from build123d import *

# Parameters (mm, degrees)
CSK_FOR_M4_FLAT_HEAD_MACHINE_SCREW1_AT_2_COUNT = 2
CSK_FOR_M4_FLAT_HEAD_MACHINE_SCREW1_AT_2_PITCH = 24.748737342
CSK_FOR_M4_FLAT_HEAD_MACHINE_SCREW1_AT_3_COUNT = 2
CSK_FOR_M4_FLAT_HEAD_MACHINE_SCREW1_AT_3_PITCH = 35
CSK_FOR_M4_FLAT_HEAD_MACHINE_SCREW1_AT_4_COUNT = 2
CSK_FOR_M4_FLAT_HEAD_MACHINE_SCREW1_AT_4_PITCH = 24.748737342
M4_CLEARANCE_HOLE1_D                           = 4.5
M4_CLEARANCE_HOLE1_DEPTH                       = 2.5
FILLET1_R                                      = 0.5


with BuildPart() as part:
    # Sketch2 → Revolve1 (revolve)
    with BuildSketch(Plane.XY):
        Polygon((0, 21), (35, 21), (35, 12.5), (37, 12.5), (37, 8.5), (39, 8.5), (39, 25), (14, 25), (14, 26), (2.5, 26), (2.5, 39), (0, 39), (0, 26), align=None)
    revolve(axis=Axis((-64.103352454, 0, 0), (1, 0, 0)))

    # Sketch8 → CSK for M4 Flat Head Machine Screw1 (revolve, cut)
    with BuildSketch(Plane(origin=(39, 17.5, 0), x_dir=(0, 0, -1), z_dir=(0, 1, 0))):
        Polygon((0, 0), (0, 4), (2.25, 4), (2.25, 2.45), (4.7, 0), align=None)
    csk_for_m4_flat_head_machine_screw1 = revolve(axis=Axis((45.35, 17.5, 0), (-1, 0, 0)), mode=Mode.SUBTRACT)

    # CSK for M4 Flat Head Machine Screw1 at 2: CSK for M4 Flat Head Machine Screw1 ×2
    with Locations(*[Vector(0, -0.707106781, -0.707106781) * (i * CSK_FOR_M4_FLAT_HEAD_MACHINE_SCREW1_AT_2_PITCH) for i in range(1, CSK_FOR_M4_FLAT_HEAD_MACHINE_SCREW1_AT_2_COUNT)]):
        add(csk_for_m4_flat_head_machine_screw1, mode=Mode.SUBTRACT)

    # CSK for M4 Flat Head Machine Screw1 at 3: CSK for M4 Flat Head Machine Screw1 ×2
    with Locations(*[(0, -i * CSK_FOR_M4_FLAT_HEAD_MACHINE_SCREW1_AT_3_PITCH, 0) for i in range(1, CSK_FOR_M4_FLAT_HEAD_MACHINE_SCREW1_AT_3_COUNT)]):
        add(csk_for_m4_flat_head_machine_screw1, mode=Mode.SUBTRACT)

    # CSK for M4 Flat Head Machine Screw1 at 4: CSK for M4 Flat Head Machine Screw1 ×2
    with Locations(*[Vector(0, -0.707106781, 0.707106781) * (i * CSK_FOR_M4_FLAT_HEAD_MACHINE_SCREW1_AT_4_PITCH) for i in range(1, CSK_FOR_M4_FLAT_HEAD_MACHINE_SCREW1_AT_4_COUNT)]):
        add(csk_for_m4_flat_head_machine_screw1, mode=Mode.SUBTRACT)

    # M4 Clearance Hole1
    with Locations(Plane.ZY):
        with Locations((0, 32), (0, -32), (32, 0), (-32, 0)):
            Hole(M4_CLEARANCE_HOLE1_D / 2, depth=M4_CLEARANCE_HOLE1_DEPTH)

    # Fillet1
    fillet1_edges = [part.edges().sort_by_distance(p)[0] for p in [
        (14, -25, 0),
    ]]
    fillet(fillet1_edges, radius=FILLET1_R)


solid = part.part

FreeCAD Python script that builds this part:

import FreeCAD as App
import Part
import Sketcher
from FreeCAD import Vector
Q = App.Units.Quantity


def edges_at(feature, points):
    """Names of the edges that pass closest to the given points."""
    edges = feature.Shape.Edges
    near = lambda p: min(range(len(edges)), key=lambda i: edges[i].distToShape(Part.Vertex(*p))[0])
    return sorted({f"Edge{near(p) + 1}" for p in points})


def add_polygon(sketch, points):
    """Adds a closed chain of lines whose ends are joined by coincident constraints."""
    first, n = sketch.GeometryCount, len(points)
    for a, b in zip(points, points[1:] + points[:1]):
        sketch.addGeometry(Part.LineSegment(App.Vector(*a, 0), App.Vector(*b, 0)), False)
    for i in range(n):
        sketch.addConstraint(Sketcher.Constraint("Coincident", first + i, 2, first + (i + 1) % n, 1))

doc = App.newDocument("Part")
params = doc.addObject("Spreadsheet::Sheet", "Params")
for row, (alias, value) in enumerate([
    ("sketch1_width", "35 mm"),
    ("sketch1_width2", "2 mm"),
    ("sketch1_width3", "25 mm"),
    ("sketch1_height", "4 mm"),
    ("sketch1_height2", "1 mm"),
    ("revolution_angle", "360 deg"),
    ("sketch2_width", "4 mm"),
    ("sketch2_height", "4.7 mm"),
    ("sketch2_width2", "1.55 mm"),
    ("groove_angle", "360 deg"),
    ("linearpattern_pitch", "24.748737 mm"),
    ("linearpattern2_pitch", "35 mm"),
    ("linearpattern3_pitch", "24.748737 mm"),
    ("sketch3_diameter", "4.5 mm"),
    ("hole_diameter", "4.5 mm"),
    ("hole_depth", "2.5 mm"),
    ("fillet_radius", "0.5 mm"),
], start=1):
    params.set(f"A{row}", alias)
    params.set(f"B{row}", "=" + value)
    params.setAlias(f"B{row}", alias)

body = doc.addObject("PartDesign::Body", "Body")

# Sketch on XY plane
sketch1 = body.newObject("Sketcher::SketchObject", "Sketch")
sketch1.AttachmentSupport = (doc.getObject("XY_Plane"), [""])
sketch1.MapMode = "FlatFace"
add_polygon(sketch1, [(0, 21), (35, 21), (35, 12.5), (37, 12.5), (37, 8.5), (39, 8.5), (39, 25), (14, 25), (14, 26), (2.5, 26), (2.5, 39), (0, 39)])  # lines 0-11
sketch1.addConstraint(Sketcher.Constraint("Horizontal", 0))
sketch1.addConstraint(Sketcher.Constraint("Vertical", 1))
sketch1.addConstraint(Sketcher.Constraint("Horizontal", 2))
sketch1.addConstraint(Sketcher.Constraint("Vertical", 3))
sketch1.addConstraint(Sketcher.Constraint("Horizontal", 4))
sketch1.addConstraint(Sketcher.Constraint("Vertical", 5))
sketch1.addConstraint(Sketcher.Constraint("Horizontal", 6))
sketch1.addConstraint(Sketcher.Constraint("Vertical", 7))
sketch1.addConstraint(Sketcher.Constraint("Horizontal", 8))
sketch1.addConstraint(Sketcher.Constraint("Vertical", 9))
sketch1.addConstraint(Sketcher.Constraint("Horizontal", 10))
sketch1.addConstraint(Sketcher.Constraint("Vertical", 11))
sketch1.addConstraint(Sketcher.Constraint("PointOnObject", 10, 2, -2))
sketch1.addConstraint(Sketcher.Constraint("Equal", 2, 4))
sketch1.addConstraint(Sketcher.Constraint("DistanceX", 0, 1, 0, 2, 35.0))
sketch1.addConstraint(Sketcher.Constraint("DistanceX", 2, 1, 2, 2, 2.0))
sketch1.addConstraint(Sketcher.Constraint("DistanceX", 6, 2, 6, 1, 25.0))
sketch1.addConstraint(Sketcher.Constraint("DistanceY", 3, 2, 3, 1, 4.0))
sketch1.addConstraint(Sketcher.Constraint("DistanceY", 7, 1, 7, 2, 1.0))
sketch1.addConstraint(Sketcher.Constraint("DistanceY", 9, 1, 9, 2, 13.0))
sketch1.addConstraint(Sketcher.Constraint("DistanceY", 11, 2, 11, 1, 18.0))
sketch1.addConstraint(Sketcher.Constraint("DistanceX", 8, 2, 8, 1, 11.5))
sketch1.addConstraint(Sketcher.Constraint("DistanceY", 1, 2, 1, 1, 8.5))
sketch1.addConstraint(Sketcher.Constraint("DistanceY", -1, 1, 0, 2, 21.0))
sketch1.setExpression("Constraints[26]", "Params.sketch1_width")
sketch1.setExpression("Constraints[27]", "Params.sketch1_width2")
sketch1.setExpression("Constraints[28]", "Params.sketch1_width3")
sketch1.setExpression("Constraints[29]", "Params.sketch1_height")
sketch1.setExpression("Constraints[30]", "Params.sketch1_height2")
revolution = body.newObject("PartDesign::Revolution", "Revolution")
revolution.Profile = sketch1
revolution.ReferenceAxis = (sketch1, ["H_Axis"])
revolution.setExpression("Angle", "Params.revolution_angle")

# Sketch on XZ plane
sketch2 = body.newObject("Sketcher::SketchObject", "Sketch001")
sketch2.AttachmentSupport = (doc.getObject("XZ_Plane"), [""])
sketch2.MapMode = "FlatFace"
sketch2.AttachmentOffset = App.Placement(Vector(0, 0, -17.5), App.Rotation())
add_polygon(sketch2, [(35, 0), (39, 0), (39, -4.7), (36.55, -2.25), (35, -2.25)])  # lines 0-4
sketch2.addConstraint(Sketcher.Constraint("Horizontal", 0))
sketch2.addConstraint(Sketcher.Constraint("Vertical", 1))
sketch2.addConstraint(Sketcher.Constraint("Horizontal", 3))
sketch2.addConstraint(Sketcher.Constraint("Vertical", 4))
sketch2.addConstraint(Sketcher.Constraint("PointOnObject", 0, 2, -1))
sketch2.addConstraint(Sketcher.Constraint("DistanceX", 0, 1, 0, 2, 4.0))
sketch2.addConstraint(Sketcher.Constraint("Angle", 2, Q("135 deg")))
sketch2.addConstraint(Sketcher.Constraint("DistanceY", 1, 2, 1, 1, 4.7))
sketch2.addConstraint(Sketcher.Constraint("DistanceX", -1, 1, 0, 2, 39.0))
sketch2.addConstraint(Sketcher.Constraint("DistanceX", 3, 2, 3, 1, 1.55))
sketch2.setExpression("Constraints[10]", "Params.sketch2_width")
sketch2.setExpression("Constraints[12]", "Params.sketch2_height")
sketch2.setExpression("Constraints[14]", "Params.sketch2_width2")
groove = body.newObject("PartDesign::Groove", "Groove")
groove.Profile = sketch2
groove.ReferenceAxis = (sketch2, ["H_Axis"])
groove.setExpression("Angle", "Params.groove_angle")
doc.recompute()

datumline = body.newObject("PartDesign::Line", "DatumLine")
datumline.Placement = App.Placement(Vector(0, 0, 0), App.Rotation(Vector(0, 0, 1), Vector(0, -0.707106781, -0.707106781)))
linearpattern = body.newObject("PartDesign::LinearPattern", "LinearPattern")
linearpattern.Originals = [groove]
linearpattern.Direction = (datumline, [""])
linearpattern.Mode = "offset"
linearpattern.setExpression("Offset", "Params.linearpattern_pitch")
linearpattern.Occurrences = 2
body.Tip = linearpattern
doc.recompute()

linearpattern2 = body.newObject("PartDesign::LinearPattern", "LinearPattern001")
linearpattern2.Originals = [groove]
linearpattern2.Direction = (doc.getObject("Y_Axis"), [""])
linearpattern2.Mode = "offset"
linearpattern2.setExpression("Offset", "Params.linearpattern2_pitch")
linearpattern2.Occurrences = 2
linearpattern2.Reversed = True
body.Tip = linearpattern2
doc.recompute()

datumline2 = body.newObject("PartDesign::Line", "DatumLine001")
datumline2.Placement = App.Placement(Vector(0, 0, 0), App.Rotation(Vector(0, 0, 1), Vector(0, -0.707106781, 0.707106781)))
linearpattern3 = body.newObject("PartDesign::LinearPattern", "LinearPattern002")
linearpattern3.Originals = [groove]
linearpattern3.Direction = (datumline2, [""])
linearpattern3.Mode = "offset"
linearpattern3.setExpression("Offset", "Params.linearpattern3_pitch")
linearpattern3.Occurrences = 2
body.Tip = linearpattern3

# Sketch on YZ plane
sketch3 = body.newObject("Sketcher::SketchObject", "Sketch002")
sketch3.AttachmentSupport = (doc.getObject("YZ_Plane"), [""])
sketch3.MapMode = "FlatFace"
sketch3.addGeometry(Part.Circle(Vector(32, 0, 0), Vector(0, 0, 1), 2.25), False)
sketch3.addGeometry(Part.Circle(Vector(-32, 0, 0), Vector(0, 0, 1), 2.25), False)
sketch3.addGeometry(Part.Circle(Vector(0, 32, 0), Vector(0, 0, 1), 2.25), False)
sketch3.addGeometry(Part.Circle(Vector(0, -32, 0), Vector(0, 0, 1), 2.25), False)
sketch3.addConstraint(Sketcher.Constraint("Equal", 0, 1))
sketch3.addConstraint(Sketcher.Constraint("Equal", 1, 2))
sketch3.addConstraint(Sketcher.Constraint("Equal", 2, 3))
sketch3.addConstraint(Sketcher.Constraint("Symmetric", 0, 3, 1, 3, -1, 1))
sketch3.addConstraint(Sketcher.Constraint("Symmetric", 2, 3, 3, 3, -1, 1))
sketch3.addConstraint(Sketcher.Constraint("PointOnObject", 0, 3, -1))
sketch3.addConstraint(Sketcher.Constraint("PointOnObject", 2, 3, -2))
sketch3.addConstraint(Sketcher.Constraint("Diameter", 0, 4.5))
sketch3.addConstraint(Sketcher.Constraint("DistanceX", -1, 1, 0, 3, 32.0))
sketch3.addConstraint(Sketcher.Constraint("DistanceY", -1, 1, 2, 3, 32.0))
sketch3.setExpression("Constraints[7]", "Params.sketch3_diameter")
doc.recompute()
hole = body.newObject("PartDesign::Hole", "Hole")
hole.Profile = sketch3
hole.ThreadType = "None"
hole.setExpression("Diameter", "Params.hole_diameter")
hole.DepthType = "Dimension"
hole.setExpression("Depth", "Params.hole_depth")
hole.DrillPoint = "Flat"
hole.Reversed = True
doc.recompute()

fillet = body.newObject("PartDesign::Fillet", "Fillet")
fillet.Base = (hole, edges_at(hole, [(14, -25, 0)]))
fillet.setExpression("Radius", "Params.fillet_radius")

doc.recompute()
